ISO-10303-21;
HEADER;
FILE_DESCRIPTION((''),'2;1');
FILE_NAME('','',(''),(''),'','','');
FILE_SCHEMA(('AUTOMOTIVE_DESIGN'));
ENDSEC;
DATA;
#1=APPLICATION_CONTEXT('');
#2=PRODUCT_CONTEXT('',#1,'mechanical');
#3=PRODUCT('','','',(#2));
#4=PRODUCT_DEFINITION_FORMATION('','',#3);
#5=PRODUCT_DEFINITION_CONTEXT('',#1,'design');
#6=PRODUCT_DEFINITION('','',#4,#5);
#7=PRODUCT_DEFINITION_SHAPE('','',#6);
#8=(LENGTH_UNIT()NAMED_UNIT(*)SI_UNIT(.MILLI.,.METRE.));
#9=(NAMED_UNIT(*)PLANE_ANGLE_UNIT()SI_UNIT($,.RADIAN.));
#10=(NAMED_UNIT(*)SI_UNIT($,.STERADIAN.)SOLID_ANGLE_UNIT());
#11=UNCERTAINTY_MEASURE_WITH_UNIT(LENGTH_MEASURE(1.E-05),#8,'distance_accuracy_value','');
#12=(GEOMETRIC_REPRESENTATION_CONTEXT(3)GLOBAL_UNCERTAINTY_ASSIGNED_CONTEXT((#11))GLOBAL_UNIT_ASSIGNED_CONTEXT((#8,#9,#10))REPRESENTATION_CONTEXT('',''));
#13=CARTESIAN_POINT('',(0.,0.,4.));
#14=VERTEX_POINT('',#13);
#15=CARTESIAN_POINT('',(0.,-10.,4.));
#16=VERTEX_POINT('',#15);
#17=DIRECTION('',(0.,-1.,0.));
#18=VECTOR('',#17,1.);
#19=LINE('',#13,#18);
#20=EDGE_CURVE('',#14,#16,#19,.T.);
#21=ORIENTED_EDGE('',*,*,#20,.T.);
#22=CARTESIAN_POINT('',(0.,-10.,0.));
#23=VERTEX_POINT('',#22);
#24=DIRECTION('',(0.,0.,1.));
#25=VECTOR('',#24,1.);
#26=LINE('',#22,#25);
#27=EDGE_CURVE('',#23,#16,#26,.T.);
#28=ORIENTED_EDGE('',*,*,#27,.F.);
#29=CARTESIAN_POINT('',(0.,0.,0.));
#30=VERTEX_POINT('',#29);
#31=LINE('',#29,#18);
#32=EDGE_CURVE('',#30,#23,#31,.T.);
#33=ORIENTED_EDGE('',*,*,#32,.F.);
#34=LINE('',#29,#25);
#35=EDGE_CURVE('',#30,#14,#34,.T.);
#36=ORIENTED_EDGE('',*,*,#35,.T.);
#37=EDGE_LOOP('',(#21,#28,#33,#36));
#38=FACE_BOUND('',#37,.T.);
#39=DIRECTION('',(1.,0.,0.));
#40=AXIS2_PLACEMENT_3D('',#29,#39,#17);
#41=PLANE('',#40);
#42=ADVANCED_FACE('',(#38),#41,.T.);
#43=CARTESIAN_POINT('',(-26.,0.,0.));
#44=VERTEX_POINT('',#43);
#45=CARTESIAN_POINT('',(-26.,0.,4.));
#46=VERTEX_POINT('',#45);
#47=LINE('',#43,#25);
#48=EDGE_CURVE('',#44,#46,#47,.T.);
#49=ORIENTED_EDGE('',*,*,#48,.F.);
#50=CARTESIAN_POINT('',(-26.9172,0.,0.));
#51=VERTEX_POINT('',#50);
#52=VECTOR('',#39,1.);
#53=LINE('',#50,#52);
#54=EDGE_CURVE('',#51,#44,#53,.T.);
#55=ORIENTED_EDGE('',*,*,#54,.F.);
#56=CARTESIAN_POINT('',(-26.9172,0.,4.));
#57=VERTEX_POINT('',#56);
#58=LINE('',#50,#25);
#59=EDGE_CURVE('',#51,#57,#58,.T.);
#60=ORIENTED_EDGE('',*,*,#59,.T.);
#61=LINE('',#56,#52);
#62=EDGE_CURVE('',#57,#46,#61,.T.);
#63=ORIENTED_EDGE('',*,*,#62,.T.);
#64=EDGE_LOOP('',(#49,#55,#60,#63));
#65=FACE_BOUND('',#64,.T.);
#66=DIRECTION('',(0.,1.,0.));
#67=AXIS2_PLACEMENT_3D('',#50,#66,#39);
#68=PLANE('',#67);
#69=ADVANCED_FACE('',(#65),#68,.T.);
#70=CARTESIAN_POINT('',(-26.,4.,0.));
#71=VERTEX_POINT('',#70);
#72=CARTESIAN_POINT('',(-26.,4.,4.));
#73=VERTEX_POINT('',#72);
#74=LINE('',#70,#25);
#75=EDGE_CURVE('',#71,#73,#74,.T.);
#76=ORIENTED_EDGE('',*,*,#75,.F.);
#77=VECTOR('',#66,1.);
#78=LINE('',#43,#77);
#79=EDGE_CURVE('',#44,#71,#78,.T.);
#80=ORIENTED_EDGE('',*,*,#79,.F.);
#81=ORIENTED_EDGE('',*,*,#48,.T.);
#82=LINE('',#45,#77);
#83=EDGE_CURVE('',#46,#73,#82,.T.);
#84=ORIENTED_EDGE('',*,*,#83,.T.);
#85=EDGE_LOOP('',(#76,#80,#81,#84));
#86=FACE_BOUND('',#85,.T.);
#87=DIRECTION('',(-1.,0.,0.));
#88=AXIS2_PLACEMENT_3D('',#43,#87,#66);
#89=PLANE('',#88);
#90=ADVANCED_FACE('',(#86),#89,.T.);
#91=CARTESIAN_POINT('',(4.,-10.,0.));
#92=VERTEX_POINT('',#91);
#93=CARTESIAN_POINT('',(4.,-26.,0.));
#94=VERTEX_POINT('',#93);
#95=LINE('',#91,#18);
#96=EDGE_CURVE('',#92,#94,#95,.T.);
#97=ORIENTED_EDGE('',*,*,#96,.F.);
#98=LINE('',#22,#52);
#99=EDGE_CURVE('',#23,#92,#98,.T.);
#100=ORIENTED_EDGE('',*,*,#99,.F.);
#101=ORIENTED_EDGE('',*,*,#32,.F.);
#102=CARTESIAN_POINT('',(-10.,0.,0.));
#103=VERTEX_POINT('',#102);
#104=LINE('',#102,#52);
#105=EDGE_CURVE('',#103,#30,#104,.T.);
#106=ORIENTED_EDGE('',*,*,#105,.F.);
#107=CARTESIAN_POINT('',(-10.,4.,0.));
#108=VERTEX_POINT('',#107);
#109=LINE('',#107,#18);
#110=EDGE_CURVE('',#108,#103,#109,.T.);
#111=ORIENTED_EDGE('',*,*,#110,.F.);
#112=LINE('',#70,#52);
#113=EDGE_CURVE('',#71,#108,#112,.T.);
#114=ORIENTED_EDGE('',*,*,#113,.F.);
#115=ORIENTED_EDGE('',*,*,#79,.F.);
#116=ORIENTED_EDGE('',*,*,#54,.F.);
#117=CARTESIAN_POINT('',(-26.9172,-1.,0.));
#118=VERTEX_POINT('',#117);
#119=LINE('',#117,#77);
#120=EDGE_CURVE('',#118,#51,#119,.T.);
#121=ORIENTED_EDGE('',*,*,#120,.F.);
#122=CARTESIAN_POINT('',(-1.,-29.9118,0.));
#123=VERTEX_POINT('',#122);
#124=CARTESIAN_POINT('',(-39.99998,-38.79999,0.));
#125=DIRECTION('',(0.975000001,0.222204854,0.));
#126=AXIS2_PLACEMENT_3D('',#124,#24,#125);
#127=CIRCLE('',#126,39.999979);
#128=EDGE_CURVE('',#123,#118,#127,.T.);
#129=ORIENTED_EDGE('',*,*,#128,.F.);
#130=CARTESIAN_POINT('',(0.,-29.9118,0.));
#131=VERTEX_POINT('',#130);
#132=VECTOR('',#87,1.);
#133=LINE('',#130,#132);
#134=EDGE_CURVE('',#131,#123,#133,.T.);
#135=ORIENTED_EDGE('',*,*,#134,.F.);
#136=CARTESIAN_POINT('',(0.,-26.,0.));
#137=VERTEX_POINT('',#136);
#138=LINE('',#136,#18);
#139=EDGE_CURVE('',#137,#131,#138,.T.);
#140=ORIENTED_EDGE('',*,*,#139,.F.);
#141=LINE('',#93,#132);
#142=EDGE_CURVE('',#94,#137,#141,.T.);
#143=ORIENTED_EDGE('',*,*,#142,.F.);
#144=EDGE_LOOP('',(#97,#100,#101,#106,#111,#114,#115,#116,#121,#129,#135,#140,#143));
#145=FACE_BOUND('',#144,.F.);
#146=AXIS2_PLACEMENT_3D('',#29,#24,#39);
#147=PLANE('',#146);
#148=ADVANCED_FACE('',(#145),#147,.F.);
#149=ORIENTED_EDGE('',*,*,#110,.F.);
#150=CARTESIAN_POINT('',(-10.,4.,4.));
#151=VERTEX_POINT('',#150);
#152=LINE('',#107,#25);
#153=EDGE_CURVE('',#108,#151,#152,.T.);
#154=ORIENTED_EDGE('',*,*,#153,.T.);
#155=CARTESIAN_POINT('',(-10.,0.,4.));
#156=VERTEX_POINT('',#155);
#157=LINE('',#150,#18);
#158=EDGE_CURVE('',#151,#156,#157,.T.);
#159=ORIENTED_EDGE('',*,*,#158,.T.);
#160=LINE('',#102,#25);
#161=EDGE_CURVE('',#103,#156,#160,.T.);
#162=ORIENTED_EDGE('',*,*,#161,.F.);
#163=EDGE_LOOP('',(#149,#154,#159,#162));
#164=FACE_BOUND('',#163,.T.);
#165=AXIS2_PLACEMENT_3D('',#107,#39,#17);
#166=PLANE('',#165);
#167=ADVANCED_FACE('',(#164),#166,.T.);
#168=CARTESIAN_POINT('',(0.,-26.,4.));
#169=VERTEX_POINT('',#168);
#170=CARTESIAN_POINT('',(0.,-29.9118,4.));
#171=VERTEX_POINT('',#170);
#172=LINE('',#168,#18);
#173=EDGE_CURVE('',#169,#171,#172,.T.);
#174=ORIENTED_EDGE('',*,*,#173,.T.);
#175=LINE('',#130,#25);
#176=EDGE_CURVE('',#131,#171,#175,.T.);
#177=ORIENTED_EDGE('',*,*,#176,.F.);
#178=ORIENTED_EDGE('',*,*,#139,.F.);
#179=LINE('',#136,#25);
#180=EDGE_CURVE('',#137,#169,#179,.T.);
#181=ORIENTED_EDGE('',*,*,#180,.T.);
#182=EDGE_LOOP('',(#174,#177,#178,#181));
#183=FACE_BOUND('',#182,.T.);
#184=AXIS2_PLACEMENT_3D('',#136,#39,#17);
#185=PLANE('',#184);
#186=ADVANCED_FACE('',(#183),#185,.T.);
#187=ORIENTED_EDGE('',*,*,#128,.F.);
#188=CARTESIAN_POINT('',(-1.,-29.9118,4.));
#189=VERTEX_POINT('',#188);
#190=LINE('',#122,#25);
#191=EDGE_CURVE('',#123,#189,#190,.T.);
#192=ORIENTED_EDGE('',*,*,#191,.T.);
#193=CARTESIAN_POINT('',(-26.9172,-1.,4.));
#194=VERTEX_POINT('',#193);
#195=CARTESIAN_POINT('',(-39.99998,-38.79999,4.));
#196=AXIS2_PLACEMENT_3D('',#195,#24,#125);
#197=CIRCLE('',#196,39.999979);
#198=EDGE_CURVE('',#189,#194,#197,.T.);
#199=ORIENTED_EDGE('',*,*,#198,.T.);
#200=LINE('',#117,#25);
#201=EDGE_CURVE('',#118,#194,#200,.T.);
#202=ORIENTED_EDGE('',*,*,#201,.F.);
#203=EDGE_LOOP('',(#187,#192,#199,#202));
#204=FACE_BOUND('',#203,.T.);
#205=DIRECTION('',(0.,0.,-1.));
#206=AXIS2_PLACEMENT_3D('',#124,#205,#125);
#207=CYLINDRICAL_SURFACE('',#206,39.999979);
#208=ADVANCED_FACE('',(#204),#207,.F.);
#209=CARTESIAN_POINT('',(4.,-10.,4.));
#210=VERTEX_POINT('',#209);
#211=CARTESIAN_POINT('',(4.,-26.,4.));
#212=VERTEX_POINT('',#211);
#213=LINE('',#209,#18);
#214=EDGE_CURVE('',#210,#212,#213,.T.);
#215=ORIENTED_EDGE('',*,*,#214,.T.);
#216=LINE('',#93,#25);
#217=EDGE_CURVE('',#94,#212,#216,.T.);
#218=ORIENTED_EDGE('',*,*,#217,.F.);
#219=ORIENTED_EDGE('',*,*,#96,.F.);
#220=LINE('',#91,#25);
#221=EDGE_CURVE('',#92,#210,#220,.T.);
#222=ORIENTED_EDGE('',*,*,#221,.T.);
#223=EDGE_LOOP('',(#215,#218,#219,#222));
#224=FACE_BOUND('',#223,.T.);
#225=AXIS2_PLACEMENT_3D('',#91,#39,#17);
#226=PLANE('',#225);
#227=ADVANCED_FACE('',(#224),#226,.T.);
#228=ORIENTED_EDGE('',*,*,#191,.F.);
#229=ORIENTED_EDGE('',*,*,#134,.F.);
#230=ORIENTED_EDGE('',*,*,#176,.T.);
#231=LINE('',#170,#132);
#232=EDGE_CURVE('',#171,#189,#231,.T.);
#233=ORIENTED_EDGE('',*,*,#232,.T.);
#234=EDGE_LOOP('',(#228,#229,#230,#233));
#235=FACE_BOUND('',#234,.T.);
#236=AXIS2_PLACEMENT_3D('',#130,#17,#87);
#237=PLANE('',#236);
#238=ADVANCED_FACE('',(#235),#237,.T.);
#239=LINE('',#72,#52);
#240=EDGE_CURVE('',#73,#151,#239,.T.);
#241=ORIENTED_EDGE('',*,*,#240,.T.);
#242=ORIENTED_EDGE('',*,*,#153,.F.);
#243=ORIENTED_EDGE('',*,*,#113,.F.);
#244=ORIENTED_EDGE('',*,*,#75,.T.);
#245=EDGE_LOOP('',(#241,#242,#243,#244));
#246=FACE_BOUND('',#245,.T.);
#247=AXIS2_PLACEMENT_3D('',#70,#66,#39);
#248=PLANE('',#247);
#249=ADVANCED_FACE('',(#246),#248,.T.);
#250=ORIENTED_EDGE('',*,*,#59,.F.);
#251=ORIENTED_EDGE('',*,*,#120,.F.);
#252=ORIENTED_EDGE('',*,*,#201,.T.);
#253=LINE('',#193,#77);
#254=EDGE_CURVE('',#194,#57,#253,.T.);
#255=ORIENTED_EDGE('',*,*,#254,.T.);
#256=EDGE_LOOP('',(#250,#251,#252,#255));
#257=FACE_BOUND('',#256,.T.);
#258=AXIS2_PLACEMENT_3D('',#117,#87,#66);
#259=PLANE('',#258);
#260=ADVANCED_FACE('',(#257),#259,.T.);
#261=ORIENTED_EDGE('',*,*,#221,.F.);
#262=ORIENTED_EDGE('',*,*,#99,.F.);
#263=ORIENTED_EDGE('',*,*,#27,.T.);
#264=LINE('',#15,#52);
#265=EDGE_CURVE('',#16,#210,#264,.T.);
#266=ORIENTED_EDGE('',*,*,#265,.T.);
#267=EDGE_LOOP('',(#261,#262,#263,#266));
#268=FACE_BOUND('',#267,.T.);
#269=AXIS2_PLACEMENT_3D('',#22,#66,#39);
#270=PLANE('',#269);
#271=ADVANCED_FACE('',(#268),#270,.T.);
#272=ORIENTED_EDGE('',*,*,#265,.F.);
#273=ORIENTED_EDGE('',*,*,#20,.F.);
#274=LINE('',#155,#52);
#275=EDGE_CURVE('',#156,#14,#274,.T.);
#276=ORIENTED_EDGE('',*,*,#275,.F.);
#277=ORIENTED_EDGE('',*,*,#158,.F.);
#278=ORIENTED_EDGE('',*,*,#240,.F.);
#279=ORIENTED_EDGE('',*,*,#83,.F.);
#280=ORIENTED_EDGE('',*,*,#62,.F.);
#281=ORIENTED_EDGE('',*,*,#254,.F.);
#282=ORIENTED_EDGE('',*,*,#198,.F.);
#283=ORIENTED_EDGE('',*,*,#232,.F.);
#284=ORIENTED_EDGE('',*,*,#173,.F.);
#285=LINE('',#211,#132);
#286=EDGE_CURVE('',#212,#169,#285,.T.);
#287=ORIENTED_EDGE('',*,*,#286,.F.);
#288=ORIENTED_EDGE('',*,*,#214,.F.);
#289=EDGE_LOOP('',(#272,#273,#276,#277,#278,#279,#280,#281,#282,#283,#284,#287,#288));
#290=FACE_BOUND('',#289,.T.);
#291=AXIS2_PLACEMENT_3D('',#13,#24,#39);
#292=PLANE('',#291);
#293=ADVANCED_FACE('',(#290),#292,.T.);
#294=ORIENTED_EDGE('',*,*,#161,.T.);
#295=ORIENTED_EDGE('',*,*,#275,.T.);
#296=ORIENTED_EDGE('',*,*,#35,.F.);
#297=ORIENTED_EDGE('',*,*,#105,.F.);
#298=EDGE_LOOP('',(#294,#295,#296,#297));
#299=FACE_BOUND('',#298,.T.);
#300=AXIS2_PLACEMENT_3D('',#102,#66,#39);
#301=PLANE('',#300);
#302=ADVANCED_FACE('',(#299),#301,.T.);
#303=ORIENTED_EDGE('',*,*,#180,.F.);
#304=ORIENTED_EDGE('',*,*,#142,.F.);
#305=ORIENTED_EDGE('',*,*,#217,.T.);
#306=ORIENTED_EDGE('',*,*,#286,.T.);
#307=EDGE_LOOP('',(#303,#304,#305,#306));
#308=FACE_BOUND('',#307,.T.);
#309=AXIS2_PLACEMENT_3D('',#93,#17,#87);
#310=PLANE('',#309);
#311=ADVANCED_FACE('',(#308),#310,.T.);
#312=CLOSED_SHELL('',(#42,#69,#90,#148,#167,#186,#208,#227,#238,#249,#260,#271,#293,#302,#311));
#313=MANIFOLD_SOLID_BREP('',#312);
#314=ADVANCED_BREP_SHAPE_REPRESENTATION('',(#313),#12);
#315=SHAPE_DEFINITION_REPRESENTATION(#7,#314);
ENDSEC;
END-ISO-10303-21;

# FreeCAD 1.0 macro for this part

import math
import FreeCAD as App
import Part
import Sketcher
from FreeCAD import Vector
Q = App.Units.Quantity

doc = App.newDocument("Part")
body = doc.addObject("PartDesign::Body", "Body")

# Sketch on XY plane
sketch1 = doc.addObject("Sketcher::SketchObject", "Sketch")
body.addObject(sketch1)
sketch1.AttachmentSupport = (doc.XY_Plane, [""])
sketch1.MapMode = "FlatFace"
sketch1.addGeometry(Part.LineSegment(Vector(0, -10, 0), Vector(0, 0, 0)), False)
sketch1.addGeometry(Part.LineSegment(Vector(0, 0, 0), Vector(-10, 0, 0)), False)
sketch1.addGeometry(Part.LineSegment(Vector(-10, 0, 0), Vector(-10, 4, 0)), False)
sketch1.addGeometry(Part.LineSegment(Vector(-10, 4, 0), Vector(-26, 4, 0)), False)
sketch1.addGeometry(Part.LineSegment(Vector(-26, 4, 0), Vector(-26, 0, 0)), False)
sketch1.addGeometry(Part.LineSegment(Vector(-26, 0, 0), Vector(-26.9172, 0, 0)), False)
sketch1.addGeometry(Part.LineSegment(Vector(-26.9172, 0, 0), Vector(-26.9172, -1, 0)), False)
sketch1.addGeometry(Part.ArcOfCircle(Part.Circle(Vector(-40, -38.8, 0), Vector(0, 0, 1), 40.000001), math.radians(12.838576), math.radians(70.908965)), False)
sketch1.addGeometry(Part.LineSegment(Vector(-1, -29.9118, 0), Vector(0, -29.9118, 0)), False)
sketch1.addGeometry(Part.LineSegment(Vector(0, -29.9118, 0), Vector(0, -26, 0)), False)
sketch1.addGeometry(Part.LineSegment(Vector(0, -26, 0), Vector(4, -26, 0)), False)
sketch1.addGeometry(Part.LineSegment(Vector(4, -26, 0), Vector(4, -10, 0)), False)
sketch1.addGeometry(Part.LineSegment(Vector(4, -10, 0), Vector(0, -10, 0)), False)
sketch1.addConstraint(Sketcher.Constraint("Coincident", 0, 2, 1, 1))
sketch1.addConstraint(Sketcher.Constraint("Coincident", 1, 2, 2, 1))
sketch1.addConstraint(Sketcher.Constraint("Coincident", 2, 2, 3, 1))
sketch1.addConstraint(Sketcher.Constraint("Coincident", 3, 2, 4, 1))
sketch1.addConstraint(Sketcher.Constraint("Coincident", 4, 2, 5, 1))
sketch1.addConstraint(Sketcher.Constraint("Coincident", 5, 2, 6, 1))
sketch1.addConstraint(Sketcher.Constraint("Coincident", 6, 2, 7, 2))
sketch1.addConstraint(Sketcher.Constraint("Coincident", 7, 1, 8, 1))
sketch1.addConstraint(Sketcher.Constraint("Coincident", 8, 2, 9, 1))
sketch1.addConstraint(Sketcher.Constraint("Coincident", 9, 2, 10, 1))
sketch1.addConstraint(Sketcher.Constraint("Coincident", 10, 2, 11, 1))
sketch1.addConstraint(Sketcher.Constraint("Coincident", 11, 2, 12, 1))
sketch1.addConstraint(Sketcher.Constraint("Coincident", 12, 2, 0, 1))
sketch1.addConstraint(Sketcher.Constraint("Vertical", 0))
sketch1.addConstraint(Sketcher.Constraint("Horizontal", 1))
sketch1.addConstraint(Sketcher.Constraint("Vertical", 2))
sketch1.addConstraint(Sketcher.Constraint("Horizontal", 3))
sketch1.addConstraint(Sketcher.Constraint("Vertical", 4))
sketch1.addConstraint(Sketcher.Constraint("Horizontal", 5))
sketch1.addConstraint(Sketcher.Constraint("Vertical", 6))
sketch1.addConstraint(Sketcher.Constraint("Horizontal", 8))
sketch1.addConstraint(Sketcher.Constraint("Vertical", 9))
sketch1.addConstraint(Sketcher.Constraint("Horizontal", 10))
sketch1.addConstraint(Sketcher.Constraint("Vertical", 11))
sketch1.addConstraint(Sketcher.Constraint("Horizontal", 12))
sketch1.addConstraint(Sketcher.Constraint("Coincident", 0, 2, -1, 1))
sketch1.addConstraint(Sketcher.Constraint("PointOnObject", 4, 2, -1))
sketch1.addConstraint(Sketcher.Constraint("PointOnObject", 8, 2, -2))
sketch1.addConstraint(Sketcher.Constraint("Equal", 1, 0))
sketch1.addConstraint(Sketcher.Constraint("Equal", 12, 2))
sketch1.addConstraint(Sketcher.Constraint("Equal", 8, 6))
sketch1.addConstraint(Sketcher.Constraint("Equal", 3, 11))
sketch1.addConstraint(Sketcher.Constraint("Radius", 7, Q("40 mm")))
sketch1.addConstraint(Sketcher.Constraint("DistanceX", 1, 2, 1, 1, Q("10 mm")))
sketch1.addConstraint(Sketcher.Constraint("DistanceX", 3, 2, 3, 1, Q("16 mm")))
sketch1.addConstraint(Sketcher.Constraint("DistanceX", 8, 1, 8, 2, Q("1 mm")))
sketch1.addConstraint(Sketcher.Constraint("DistanceX", 10, 1, 10, 2, Q("4 mm")))
sketch1.addConstraint(Sketcher.Constraint("DistanceX", 7, 3, -1, 1, Q("40 mm")))
sketch1.addConstraint(Sketcher.Constraint("DistanceY", 7, 3, -1, 1, Q("38.8 mm")))
pad1 = doc.addObject("PartDesign::Pad", "Pad")
body.addObject(pad1)
pad1.Profile = sketch1
pad1.Length = 4

doc.recompute()
